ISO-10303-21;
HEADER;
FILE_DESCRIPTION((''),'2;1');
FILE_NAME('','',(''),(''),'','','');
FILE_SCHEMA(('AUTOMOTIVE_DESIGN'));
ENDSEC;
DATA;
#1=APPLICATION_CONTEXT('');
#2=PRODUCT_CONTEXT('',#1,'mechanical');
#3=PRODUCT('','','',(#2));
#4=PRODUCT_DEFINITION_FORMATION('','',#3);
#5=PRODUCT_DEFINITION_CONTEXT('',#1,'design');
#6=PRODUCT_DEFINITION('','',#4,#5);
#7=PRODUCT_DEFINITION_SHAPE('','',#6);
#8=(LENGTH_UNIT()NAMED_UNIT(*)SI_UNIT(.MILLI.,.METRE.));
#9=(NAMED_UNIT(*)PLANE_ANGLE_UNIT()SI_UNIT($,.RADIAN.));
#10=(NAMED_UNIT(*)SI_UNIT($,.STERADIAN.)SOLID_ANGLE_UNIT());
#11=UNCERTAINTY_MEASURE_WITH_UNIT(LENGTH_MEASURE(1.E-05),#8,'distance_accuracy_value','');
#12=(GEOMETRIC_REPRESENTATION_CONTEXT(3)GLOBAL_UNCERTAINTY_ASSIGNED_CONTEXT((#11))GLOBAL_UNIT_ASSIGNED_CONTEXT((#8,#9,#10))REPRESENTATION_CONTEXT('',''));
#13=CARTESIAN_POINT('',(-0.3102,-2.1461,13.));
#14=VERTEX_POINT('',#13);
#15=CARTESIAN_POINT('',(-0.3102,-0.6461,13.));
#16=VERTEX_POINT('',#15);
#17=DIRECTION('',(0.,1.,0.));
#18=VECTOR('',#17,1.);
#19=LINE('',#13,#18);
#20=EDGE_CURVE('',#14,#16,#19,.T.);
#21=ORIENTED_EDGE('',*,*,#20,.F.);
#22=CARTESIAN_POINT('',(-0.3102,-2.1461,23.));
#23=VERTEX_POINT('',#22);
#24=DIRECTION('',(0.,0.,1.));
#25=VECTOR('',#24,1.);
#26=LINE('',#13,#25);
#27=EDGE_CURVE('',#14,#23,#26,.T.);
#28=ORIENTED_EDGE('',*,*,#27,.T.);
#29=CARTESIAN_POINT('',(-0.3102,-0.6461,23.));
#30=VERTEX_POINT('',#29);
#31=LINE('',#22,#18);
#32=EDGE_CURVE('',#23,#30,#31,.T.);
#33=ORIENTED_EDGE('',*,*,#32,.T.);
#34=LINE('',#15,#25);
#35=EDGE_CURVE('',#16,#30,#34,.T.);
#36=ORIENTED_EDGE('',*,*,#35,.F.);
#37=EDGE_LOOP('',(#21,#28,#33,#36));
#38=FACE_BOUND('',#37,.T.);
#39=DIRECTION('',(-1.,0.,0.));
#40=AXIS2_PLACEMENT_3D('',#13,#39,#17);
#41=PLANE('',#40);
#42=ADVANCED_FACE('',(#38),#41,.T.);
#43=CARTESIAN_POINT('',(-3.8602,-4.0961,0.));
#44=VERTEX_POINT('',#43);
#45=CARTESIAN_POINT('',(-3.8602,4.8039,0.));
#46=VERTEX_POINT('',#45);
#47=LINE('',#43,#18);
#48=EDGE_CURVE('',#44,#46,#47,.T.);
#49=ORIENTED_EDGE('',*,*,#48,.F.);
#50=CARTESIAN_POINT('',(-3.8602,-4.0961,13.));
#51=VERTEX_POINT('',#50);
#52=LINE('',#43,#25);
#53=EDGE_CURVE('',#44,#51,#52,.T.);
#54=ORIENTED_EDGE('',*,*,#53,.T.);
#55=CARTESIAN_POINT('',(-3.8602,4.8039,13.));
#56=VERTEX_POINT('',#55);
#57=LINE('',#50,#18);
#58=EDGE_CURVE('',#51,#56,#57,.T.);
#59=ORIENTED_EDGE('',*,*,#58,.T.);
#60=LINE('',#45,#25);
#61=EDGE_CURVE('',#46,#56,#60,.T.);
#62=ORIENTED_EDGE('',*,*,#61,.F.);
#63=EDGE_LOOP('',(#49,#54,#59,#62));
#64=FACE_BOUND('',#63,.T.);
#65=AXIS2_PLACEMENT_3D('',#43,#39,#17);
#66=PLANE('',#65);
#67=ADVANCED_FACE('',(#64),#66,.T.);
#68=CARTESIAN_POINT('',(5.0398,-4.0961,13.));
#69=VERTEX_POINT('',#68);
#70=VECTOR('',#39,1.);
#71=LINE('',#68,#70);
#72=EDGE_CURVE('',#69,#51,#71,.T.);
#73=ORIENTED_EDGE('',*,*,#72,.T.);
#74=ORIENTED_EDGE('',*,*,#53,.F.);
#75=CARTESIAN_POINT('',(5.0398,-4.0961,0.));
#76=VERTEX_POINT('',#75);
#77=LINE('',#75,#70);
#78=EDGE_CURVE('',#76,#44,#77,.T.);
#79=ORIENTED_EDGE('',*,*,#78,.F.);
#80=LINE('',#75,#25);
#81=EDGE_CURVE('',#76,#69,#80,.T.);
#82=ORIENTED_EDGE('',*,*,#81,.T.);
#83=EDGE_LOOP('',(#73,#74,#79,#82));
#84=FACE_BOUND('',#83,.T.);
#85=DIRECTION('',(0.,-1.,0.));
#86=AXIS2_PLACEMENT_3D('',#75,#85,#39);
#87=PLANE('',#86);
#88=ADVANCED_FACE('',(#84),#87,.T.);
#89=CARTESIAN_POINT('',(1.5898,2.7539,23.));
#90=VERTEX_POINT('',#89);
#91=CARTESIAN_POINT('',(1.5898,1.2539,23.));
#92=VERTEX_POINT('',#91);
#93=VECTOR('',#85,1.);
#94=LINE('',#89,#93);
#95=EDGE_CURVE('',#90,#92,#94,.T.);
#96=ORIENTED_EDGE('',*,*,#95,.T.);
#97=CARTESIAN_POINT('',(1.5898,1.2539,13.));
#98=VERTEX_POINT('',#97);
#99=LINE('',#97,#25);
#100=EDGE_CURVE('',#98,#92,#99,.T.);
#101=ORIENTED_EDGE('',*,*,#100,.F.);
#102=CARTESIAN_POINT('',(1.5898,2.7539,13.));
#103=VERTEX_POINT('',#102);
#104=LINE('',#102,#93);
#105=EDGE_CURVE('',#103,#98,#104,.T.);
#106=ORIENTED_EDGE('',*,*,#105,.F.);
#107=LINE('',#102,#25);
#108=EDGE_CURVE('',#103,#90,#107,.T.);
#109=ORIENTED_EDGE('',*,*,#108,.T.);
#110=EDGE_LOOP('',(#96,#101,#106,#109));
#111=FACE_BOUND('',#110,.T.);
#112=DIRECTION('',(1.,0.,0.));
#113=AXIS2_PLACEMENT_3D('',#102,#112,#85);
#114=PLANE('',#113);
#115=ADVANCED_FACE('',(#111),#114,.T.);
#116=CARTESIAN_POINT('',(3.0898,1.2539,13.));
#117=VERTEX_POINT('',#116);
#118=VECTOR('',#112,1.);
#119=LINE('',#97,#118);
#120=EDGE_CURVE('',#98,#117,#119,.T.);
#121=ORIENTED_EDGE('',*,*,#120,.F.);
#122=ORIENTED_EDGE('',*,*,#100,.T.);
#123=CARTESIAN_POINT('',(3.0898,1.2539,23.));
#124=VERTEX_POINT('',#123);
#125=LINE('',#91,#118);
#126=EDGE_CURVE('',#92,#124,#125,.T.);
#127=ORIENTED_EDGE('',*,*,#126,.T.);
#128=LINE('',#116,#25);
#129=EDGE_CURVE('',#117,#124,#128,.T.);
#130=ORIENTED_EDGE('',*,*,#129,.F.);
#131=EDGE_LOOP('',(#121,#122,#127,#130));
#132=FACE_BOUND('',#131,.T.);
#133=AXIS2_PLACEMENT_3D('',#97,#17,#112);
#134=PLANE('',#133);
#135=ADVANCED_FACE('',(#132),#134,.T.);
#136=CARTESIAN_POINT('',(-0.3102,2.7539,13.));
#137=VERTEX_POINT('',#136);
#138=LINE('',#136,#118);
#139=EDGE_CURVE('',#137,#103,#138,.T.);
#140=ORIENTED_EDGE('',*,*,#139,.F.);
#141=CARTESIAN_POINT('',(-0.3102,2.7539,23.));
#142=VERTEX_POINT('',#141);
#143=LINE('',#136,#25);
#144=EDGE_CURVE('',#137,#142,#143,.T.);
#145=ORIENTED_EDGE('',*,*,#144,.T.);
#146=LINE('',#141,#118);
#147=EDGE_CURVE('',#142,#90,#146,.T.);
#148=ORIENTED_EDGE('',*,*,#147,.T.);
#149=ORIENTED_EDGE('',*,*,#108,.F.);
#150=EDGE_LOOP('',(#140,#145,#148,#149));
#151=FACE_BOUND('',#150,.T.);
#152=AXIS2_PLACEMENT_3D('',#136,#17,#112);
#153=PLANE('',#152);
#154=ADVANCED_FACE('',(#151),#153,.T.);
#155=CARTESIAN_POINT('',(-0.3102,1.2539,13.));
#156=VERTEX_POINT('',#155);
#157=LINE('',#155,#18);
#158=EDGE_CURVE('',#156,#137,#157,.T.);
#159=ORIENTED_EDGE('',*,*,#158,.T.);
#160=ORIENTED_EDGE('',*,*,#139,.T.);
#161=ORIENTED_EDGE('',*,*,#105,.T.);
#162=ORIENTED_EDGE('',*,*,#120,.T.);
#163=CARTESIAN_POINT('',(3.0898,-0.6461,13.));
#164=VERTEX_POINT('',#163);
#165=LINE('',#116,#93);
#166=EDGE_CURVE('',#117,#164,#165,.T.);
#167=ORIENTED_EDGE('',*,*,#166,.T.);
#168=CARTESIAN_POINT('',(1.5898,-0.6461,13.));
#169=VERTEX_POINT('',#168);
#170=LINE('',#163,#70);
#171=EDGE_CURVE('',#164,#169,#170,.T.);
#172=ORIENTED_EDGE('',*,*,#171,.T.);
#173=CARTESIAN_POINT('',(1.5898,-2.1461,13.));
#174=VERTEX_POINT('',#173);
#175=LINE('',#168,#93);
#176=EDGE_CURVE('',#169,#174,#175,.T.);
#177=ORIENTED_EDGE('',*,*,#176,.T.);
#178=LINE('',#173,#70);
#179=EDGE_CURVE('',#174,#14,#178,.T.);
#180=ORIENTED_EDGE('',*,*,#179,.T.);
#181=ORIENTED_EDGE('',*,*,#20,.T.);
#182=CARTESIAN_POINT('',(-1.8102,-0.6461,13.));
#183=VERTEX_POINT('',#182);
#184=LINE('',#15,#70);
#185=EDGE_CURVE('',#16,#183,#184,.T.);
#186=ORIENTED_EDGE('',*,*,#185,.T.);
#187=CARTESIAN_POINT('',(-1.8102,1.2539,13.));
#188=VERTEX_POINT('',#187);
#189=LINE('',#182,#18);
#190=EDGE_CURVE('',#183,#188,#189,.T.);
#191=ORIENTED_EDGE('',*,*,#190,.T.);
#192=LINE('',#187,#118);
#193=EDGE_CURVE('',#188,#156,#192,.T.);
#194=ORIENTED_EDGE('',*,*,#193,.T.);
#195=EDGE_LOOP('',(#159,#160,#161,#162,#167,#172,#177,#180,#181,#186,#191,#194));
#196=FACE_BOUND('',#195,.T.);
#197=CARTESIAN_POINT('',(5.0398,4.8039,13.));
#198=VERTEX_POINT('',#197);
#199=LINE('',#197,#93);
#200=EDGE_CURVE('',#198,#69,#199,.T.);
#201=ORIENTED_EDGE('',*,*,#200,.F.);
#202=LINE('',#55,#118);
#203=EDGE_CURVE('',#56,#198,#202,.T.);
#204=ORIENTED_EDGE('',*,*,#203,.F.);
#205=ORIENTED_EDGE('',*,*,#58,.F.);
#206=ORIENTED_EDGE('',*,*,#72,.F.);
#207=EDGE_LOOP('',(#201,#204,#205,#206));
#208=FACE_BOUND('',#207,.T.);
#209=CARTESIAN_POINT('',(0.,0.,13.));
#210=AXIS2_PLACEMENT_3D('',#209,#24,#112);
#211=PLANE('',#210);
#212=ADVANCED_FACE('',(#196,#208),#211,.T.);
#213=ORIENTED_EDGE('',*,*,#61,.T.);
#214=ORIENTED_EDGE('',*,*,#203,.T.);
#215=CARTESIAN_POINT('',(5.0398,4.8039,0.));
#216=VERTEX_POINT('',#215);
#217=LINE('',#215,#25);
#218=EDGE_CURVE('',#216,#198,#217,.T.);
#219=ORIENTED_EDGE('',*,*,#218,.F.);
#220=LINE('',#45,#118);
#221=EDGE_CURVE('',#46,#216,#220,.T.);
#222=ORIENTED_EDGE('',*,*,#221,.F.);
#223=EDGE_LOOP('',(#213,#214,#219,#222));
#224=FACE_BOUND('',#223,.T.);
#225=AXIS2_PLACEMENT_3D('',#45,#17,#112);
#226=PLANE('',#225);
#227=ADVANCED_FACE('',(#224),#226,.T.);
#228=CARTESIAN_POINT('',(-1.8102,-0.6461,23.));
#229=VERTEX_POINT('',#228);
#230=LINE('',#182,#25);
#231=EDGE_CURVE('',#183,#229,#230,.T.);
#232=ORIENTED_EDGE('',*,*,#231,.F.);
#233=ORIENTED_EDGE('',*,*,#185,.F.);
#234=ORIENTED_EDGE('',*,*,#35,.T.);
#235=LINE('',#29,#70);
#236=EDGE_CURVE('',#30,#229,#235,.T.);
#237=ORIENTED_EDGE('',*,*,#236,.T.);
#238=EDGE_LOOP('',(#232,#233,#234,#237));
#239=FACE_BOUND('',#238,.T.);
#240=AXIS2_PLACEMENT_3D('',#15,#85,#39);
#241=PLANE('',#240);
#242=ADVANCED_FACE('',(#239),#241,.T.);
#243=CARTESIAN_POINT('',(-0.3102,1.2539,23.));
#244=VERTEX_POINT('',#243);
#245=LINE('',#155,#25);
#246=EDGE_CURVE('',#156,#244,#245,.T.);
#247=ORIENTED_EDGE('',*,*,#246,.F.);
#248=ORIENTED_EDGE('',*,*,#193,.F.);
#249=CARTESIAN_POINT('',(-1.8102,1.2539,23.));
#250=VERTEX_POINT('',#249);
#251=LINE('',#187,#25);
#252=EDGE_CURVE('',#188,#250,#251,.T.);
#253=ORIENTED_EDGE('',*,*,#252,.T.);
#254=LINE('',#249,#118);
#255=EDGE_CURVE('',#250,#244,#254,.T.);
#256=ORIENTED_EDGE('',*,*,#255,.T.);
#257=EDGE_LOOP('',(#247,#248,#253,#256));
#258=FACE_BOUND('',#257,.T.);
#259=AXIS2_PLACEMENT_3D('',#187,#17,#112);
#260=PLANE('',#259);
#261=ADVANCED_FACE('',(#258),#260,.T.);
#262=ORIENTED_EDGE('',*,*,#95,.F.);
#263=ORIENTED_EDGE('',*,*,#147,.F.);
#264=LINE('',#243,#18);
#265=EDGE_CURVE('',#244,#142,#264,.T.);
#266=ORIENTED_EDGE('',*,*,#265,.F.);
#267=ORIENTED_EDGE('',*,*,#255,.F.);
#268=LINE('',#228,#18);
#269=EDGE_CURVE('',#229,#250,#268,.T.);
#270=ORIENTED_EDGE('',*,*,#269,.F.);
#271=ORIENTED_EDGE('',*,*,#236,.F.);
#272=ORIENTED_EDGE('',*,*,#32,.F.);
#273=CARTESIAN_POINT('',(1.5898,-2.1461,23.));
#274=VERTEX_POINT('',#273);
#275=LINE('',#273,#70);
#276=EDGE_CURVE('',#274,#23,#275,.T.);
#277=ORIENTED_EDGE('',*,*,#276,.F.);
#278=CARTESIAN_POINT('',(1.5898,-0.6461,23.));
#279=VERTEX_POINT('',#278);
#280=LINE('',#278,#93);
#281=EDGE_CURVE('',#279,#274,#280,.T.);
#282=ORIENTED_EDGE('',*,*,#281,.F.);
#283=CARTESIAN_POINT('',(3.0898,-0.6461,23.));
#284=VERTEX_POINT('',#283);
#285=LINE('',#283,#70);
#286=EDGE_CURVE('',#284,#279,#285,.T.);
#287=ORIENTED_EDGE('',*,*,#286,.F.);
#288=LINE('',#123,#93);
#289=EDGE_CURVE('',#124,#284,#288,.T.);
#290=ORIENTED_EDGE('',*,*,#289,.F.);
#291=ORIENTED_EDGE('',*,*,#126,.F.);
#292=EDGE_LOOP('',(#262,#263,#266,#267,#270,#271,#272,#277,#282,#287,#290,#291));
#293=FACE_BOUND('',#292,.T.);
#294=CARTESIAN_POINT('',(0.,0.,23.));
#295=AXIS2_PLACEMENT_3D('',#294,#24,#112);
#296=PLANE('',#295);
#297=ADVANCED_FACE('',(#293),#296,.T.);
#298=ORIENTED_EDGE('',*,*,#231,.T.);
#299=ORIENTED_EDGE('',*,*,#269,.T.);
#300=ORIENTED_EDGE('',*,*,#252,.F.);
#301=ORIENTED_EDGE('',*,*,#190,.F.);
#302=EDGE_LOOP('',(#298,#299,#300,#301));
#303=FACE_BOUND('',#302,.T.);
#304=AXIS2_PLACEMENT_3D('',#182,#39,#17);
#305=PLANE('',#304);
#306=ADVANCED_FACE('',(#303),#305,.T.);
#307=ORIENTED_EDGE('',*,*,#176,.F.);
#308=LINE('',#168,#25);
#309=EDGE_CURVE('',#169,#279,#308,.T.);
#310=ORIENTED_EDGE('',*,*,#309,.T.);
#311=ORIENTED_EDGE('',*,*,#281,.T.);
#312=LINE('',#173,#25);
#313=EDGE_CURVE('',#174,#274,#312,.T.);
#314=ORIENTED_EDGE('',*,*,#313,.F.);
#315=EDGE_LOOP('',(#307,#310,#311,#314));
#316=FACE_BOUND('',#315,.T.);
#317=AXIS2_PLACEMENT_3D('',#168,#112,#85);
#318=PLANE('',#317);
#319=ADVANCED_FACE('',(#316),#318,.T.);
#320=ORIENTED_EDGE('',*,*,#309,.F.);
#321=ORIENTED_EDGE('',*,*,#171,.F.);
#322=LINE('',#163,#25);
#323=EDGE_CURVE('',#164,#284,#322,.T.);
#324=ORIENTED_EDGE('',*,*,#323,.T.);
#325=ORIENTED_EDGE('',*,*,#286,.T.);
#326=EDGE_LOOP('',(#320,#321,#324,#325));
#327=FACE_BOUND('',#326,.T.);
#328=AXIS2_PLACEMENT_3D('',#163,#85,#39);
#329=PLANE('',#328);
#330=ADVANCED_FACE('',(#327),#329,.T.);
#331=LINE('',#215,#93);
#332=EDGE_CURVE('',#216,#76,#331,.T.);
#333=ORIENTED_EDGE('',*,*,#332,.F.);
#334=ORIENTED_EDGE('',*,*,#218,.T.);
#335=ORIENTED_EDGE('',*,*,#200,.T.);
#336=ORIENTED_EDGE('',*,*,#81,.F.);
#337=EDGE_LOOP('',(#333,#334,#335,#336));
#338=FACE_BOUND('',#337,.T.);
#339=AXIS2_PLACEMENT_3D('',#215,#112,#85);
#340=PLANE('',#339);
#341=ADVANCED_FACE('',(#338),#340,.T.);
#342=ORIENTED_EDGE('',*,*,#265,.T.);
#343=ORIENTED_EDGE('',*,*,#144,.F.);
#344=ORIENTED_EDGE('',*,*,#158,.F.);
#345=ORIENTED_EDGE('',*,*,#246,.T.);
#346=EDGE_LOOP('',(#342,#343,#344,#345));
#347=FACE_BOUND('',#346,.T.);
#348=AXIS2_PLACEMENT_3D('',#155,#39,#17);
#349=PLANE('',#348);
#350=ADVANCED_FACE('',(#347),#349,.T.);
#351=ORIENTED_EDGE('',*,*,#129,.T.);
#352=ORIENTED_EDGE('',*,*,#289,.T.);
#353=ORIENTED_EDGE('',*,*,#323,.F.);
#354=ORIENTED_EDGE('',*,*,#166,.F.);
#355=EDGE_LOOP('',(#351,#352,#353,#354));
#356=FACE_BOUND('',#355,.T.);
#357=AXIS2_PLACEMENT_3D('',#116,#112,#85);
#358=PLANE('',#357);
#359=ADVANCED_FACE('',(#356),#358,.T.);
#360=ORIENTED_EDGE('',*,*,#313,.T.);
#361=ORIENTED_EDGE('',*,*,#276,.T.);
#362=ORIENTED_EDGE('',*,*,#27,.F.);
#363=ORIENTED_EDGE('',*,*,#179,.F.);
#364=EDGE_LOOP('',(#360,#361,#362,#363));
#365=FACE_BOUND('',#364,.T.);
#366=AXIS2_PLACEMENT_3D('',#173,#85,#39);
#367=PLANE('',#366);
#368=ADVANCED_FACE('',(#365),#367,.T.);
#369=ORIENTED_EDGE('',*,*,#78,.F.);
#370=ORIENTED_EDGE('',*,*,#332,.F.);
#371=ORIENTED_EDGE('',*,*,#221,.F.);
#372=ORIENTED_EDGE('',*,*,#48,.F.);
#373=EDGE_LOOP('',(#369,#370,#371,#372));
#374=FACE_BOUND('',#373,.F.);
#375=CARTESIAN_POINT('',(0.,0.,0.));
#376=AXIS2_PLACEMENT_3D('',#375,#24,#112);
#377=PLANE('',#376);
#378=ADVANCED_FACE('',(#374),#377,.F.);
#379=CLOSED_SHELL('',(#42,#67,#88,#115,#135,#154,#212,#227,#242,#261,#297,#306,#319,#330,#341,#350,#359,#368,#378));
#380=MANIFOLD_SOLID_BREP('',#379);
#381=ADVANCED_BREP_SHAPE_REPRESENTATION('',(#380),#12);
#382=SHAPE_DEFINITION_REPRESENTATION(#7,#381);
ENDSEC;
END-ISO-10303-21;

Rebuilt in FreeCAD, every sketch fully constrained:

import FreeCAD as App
import Part
import Sketcher
from FreeCAD import Vector
Q = App.Units.Quantity


def add_polygon(sketch, points):
    """Adds a closed chain of lines whose ends are joined by coincident constraints."""
    first, n = sketch.GeometryCount, len(points)
    for a, b in zip(points, points[1:] + points[:1]):
        sketch.addGeometry(Part.LineSegment(App.Vector(*a, 0), App.Vector(*b, 0)), False)
    for i in range(n):
        sketch.addConstraint(Sketcher.Constraint("Coincident", first + i, 2, first + (i + 1) % n, 1))

doc = App.newDocument("Part")
params = doc.addObject("Spreadsheet::Sheet", "Params")
for row, (alias, value) in enumerate([
    ("sketch1_width", "8.9 mm"),
    ("pad1_length", "13 mm"),
    ("sketch2_width", "1.9 mm"),
    ("pad2_length", "10 mm"),
], start=1):
    params.set(f"A{row}", alias)
    params.set(f"B{row}", "=" + value)
    params.setAlias(f"B{row}", alias)

body = doc.addObject("PartDesign::Body", "Body")

sketch1 = body.newObject("Sketcher::SketchObject", "Sketch")
sketch1.AttachmentSupport = (doc.getObject("XY_Plane"), [""])
sketch1.MapMode = "FlatFace"
add_polygon(sketch1, [(5.0398, 4.8039), (-3.8602, 4.8039), (-3.8602, -4.0961), (5.0398, -4.0961)])
sketch1.addConstraint([
    Sketcher.Constraint("Horizontal", 0),
    Sketcher.Constraint("Vertical", 1),
    Sketcher.Constraint("Horizontal", 2),
    Sketcher.Constraint("Vertical", 3),
    Sketcher.Constraint("Equal", 2, 1),
    Sketcher.Constraint("DistanceX", 0, 2, 0, 1, Q("8.9 mm")),
    Sketcher.Constraint("DistanceY", -1, 1, 0, 2, Q("4.804 mm")),
    Sketcher.Constraint("DistanceX", 0, 2, -1, 1, Q("3.8602 mm")),
])
sketch1.setExpression("Constraints[9]", "Params.sketch1_width")
pad1 = body.newObject("PartDesign::Pad", "Pad")
pad1.Profile = sketch1
pad1.setExpression("Length", "Params.pad1_length")

sketch2 = body.newObject("Sketcher::SketchObject", "Sketch001")
sketch2.AttachmentSupport = (doc.getObject("XY_Plane"), [""])
sketch2.MapMode = "FlatFace"
sketch2.AttachmentOffset = App.Placement(Vector(0, 0, 13), App.Rotation())
add_polygon(sketch2, [(1.5898, 2.7539), (-0.3102, 2.7539), (-0.3102, 1.2539), (-1.8102, 1.2539), (-1.8102, -0.6461), (-0.3102, -0.6461), (-0.3102, -2.1461), (1.5898, -2.1461), (1.5898, -0.6461), (3.0898, -0.6461), (3.0898, 1.2539), (1.5898, 1.2539)])
sketch2.addConstraint([
    Sketcher.Constraint("Horizontal", 0),
    Sketcher.Constraint("Vertical", 1),
    Sketcher.Constraint("Horizontal", 2),
    Sketcher.Constraint("Vertical", 3),
    Sketcher.Constraint("Horizontal", 4),
    Sketcher.Constraint("Vertical", 5),
    Sketcher.Constraint("Horizontal", 6),
    Sketcher.Constraint("Vertical", 7),
    Sketcher.Constraint("Horizontal", 8),
    Sketcher.Constraint("Vertical", 9),
    Sketcher.Constraint("Horizontal", 10),
    Sketcher.Constraint("Vertical", 11),
    Sketcher.Constraint("Horizontal", 4, 2, 7, 2),
    Sketcher.Constraint("Horizontal", 2, 2, 9, 2),
    Sketcher.Constraint("Vertical", 1, 2, 4, 2),
    Sketcher.Constraint("Vertical", 7, 2, 10, 2),
    Sketcher.Constraint("Equal", 4, 8),
    Sketcher.Constraint("Equal", 10, 1),
    Sketcher.Constraint("Equal", 6, 3),
    Sketcher.Constraint("Equal", 1, 5),
    Sketcher.Constraint("DistanceX", 0, 2, 0, 1, Q("1.9 mm")),
    Sketcher.Constraint("DistanceY", 5, 2, 0, 2, Q("4.9 mm")),
    Sketcher.Constraint("DistanceY", -1, 1, 0, 2, Q("2.754 mm")),
    Sketcher.Constraint("DistanceX", 0, 2, -1, 1, Q("0.3102 mm")),
])
sketch2.setExpression("Constraints[32]", "Params.sketch2_width")
pad2 = body.newObject("PartDesign::Pad", "Pad001")
pad2.Profile = sketch2
pad2.setExpression("Length", "Params.pad2_length")

doc.recompute()
